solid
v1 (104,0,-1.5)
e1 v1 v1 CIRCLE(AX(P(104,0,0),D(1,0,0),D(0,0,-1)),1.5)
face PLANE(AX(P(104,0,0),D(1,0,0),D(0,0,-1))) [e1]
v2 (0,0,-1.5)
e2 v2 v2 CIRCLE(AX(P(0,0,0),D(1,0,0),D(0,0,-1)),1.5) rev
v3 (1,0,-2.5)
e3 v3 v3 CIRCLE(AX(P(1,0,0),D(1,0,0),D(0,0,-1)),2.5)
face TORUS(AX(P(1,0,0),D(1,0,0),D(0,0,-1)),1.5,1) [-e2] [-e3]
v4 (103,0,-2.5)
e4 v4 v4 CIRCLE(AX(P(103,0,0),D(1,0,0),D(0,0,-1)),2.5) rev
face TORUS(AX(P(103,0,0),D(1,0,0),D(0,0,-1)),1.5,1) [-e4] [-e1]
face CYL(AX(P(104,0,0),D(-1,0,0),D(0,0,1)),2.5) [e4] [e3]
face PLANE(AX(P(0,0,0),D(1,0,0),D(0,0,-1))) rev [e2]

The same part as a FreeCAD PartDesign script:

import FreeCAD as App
import Part
import Sketcher
from FreeCAD import Vector
Q = App.Units.Quantity


def edges_at(feature, points):
    """Names of the edges that pass closest to the given points."""
    edges = feature.Shape.Edges
    near = lambda p: min(range(len(edges)), key=lambda i: edges[i].distToShape(Part.Vertex(*p))[0])
    return sorted({f"Edge{near(p) + 1}" for p in points})

doc = App.newDocument("Part")
params = doc.addObject("Spreadsheet::Sheet", "Params")
for row, (alias, value) in enumerate([
    ("sketch1_diameter", "5 mm"),
    ("pad1_length", "104 mm"),
    ("fillet_radius", "1 mm"),
], start=1):
    params.set(f"A{row}", alias)
    params.set(f"B{row}", "=" + value)
    params.setAlias(f"B{row}", alias)

body = doc.addObject("PartDesign::Body", "Body")

# Sketch on YZ plane
sketch1 = body.newObject("Sketcher::SketchObject", "Sketch")
sketch1.AttachmentSupport = (doc.getObject("YZ_Plane"), [""])
sketch1.MapMode = "FlatFace"
sketch1.addGeometry(Part.Circle(Vector(0, 0, 0), Vector(0, 0, 1), 2.5), False)
sketch1.addConstraint(Sketcher.Constraint("Coincident", 0, 3, -1, 1))
sketch1.addConstraint(Sketcher.Constraint("Diameter", 0, Q("5 mm")))
sketch1.setExpression("Constraints[1]", "Params.sketch1_diameter")
pad1 = body.newObject("PartDesign::Pad", "Pad")
pad1.Profile = sketch1
pad1.setExpression("Length", "Params.pad1_length")
doc.recompute()

fillet = body.newObject("PartDesign::Fillet", "Fillet")
fillet.Base = (pad1, edges_at(pad1, [(0, -2.5, 0), (104, -2.5, 0)]))
fillet.setExpression("Radius", "Params.fillet_radius")

doc.recompute()
